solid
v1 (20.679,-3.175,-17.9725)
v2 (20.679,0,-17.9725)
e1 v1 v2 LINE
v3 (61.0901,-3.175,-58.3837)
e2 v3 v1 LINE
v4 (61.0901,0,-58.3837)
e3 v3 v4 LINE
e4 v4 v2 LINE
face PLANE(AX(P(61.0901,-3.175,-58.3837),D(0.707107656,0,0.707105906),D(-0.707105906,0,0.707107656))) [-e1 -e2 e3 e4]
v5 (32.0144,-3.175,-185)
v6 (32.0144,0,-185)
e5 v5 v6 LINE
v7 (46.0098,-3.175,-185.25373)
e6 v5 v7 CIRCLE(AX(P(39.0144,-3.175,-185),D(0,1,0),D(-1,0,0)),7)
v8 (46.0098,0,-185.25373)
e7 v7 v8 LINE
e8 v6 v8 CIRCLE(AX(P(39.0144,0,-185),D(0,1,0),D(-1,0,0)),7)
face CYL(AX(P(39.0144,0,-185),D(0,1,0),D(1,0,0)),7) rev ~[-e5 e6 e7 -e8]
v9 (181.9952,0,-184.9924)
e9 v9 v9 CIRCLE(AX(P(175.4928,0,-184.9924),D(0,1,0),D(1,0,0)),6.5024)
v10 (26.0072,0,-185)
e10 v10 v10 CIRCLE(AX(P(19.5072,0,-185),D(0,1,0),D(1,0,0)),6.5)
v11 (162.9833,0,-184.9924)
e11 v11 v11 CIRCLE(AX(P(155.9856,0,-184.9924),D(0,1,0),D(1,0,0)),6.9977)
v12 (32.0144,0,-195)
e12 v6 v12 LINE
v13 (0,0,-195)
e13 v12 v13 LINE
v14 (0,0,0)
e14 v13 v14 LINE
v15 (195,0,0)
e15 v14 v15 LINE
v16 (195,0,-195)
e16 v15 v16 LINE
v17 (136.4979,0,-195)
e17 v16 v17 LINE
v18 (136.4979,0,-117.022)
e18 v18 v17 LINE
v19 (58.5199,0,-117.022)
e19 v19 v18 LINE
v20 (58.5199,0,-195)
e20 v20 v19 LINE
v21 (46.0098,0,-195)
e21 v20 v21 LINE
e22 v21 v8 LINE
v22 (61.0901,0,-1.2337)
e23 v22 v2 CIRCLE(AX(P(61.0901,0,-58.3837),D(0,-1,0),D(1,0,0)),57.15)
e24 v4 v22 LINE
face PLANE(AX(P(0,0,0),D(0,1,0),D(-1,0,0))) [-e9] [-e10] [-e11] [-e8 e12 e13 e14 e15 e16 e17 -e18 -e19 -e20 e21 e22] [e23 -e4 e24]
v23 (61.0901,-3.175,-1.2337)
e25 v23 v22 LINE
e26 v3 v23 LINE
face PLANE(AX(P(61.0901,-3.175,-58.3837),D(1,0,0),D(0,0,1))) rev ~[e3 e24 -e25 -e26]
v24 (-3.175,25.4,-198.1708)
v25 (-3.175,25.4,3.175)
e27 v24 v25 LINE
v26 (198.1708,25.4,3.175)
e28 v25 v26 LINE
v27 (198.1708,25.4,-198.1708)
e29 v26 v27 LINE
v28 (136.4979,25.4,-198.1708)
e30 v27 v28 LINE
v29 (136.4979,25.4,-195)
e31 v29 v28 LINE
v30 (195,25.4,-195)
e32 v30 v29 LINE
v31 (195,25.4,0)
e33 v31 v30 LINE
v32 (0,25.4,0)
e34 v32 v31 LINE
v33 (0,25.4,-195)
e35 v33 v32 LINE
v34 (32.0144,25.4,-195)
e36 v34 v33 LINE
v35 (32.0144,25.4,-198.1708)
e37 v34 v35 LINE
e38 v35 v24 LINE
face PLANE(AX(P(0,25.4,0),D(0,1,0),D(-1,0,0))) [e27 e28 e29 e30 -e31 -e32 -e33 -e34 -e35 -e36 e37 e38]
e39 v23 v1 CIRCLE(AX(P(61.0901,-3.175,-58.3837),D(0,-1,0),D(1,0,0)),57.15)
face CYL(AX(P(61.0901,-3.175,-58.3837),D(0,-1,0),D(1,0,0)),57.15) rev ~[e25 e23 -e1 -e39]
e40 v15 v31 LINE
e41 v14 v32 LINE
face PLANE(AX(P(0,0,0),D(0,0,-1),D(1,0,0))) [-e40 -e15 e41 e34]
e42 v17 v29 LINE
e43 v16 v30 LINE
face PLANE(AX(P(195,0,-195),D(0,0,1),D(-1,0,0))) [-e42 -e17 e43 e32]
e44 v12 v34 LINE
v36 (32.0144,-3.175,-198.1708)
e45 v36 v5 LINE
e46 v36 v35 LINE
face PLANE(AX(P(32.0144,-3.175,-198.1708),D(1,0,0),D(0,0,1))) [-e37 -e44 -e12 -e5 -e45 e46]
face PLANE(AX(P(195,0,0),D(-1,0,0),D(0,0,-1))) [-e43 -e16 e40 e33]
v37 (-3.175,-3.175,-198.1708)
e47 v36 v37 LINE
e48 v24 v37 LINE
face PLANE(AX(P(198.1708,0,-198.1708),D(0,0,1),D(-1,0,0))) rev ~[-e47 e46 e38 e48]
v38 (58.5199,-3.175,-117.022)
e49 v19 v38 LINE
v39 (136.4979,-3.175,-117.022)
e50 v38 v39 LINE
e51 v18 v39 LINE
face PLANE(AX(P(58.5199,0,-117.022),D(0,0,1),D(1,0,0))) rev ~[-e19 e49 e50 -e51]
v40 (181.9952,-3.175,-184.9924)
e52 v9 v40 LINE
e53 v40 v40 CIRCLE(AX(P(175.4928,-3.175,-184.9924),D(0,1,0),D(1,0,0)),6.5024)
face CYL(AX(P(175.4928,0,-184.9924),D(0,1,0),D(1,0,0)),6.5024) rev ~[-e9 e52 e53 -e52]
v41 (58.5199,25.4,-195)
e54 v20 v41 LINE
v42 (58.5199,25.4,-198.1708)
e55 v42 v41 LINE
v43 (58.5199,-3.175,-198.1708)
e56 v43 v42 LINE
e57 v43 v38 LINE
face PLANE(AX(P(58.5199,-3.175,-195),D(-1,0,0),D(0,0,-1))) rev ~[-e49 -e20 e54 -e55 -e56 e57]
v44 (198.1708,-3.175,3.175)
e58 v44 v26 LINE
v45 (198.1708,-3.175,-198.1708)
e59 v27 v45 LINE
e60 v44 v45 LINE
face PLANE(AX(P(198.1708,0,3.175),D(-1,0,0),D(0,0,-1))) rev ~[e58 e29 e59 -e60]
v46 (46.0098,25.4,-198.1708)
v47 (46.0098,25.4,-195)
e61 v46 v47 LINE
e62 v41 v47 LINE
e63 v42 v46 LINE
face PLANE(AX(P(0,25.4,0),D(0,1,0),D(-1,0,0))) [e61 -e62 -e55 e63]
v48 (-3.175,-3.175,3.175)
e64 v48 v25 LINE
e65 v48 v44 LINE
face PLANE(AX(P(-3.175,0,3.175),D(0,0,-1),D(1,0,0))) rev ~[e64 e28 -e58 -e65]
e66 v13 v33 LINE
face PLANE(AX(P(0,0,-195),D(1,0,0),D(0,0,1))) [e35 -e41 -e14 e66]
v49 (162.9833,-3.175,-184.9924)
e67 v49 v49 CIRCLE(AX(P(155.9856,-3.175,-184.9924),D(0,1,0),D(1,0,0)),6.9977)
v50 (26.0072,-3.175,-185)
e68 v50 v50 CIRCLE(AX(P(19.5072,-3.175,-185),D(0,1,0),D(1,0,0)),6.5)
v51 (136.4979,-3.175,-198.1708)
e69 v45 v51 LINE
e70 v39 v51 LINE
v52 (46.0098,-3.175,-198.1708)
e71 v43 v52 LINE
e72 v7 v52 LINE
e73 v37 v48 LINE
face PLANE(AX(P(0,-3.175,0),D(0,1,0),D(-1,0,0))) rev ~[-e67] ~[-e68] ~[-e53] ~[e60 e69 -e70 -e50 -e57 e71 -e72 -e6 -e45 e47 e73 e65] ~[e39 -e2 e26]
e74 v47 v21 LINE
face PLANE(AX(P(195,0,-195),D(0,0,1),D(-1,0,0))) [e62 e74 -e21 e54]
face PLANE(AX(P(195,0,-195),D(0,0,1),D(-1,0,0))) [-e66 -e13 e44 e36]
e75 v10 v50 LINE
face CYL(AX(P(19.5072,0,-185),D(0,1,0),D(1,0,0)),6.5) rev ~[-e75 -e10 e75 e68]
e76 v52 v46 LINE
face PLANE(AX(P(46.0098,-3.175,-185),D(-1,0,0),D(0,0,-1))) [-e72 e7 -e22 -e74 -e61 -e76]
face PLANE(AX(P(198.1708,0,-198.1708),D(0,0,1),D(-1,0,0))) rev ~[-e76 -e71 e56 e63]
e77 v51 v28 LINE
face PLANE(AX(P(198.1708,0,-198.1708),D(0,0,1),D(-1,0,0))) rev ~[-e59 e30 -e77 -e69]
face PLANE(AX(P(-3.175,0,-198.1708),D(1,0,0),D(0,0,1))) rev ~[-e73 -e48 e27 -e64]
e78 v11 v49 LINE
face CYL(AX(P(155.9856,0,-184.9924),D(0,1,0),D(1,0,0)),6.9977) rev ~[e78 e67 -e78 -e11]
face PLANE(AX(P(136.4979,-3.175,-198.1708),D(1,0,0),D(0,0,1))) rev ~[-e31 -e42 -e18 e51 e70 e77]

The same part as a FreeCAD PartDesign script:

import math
import FreeCAD as App
import Part
import Sketcher
Q = App.Units.Quantity

doc = App.newDocument("Part")
body = doc.addObject("PartDesign::Body", "Body")

sketch1 = body.newObject("Sketcher::SketchObject", "Sketch")
sketch1.AttachmentSupport = (doc.getObject("XZ_Plane"), [""])
sketch1.MapMode = "FlatFace"
sketch1.addGeometry(Part.LineSegment(App.Vector(-3, -198, 0), App.Vector(-3, 3, 0)), False)
sketch1.addGeometry(Part.LineSegment(App.Vector(-3, 3, 0), App.Vector(198, 3, 0)), False)
sketch1.addGeometry(Part.LineSegment(App.Vector(198, 3, 0), App.Vector(198, -198, 0)), False)
sketch1.addGeometry(Part.LineSegment(App.Vector(198, -198, 0), App.Vector(-3, -198, 0)), False)
sketch1.addGeometry(Part.LineSegment(App.Vector(195, 0, 0), App.Vector(0, 0, 0)), False)
sketch1.addGeometry(Part.LineSegment(App.Vector(0, 0, 0), App.Vector(0, -195, 0)), False)
sketch1.addGeometry(Part.LineSegment(App.Vector(0, -195, 0), App.Vector(195, -195, 0)), False)
sketch1.addGeometry(Part.LineSegment(App.Vector(195, -195, 0), App.Vector(195, 0, 0)), False)
sketch1.addConstraint(Sketcher.Constraint("Coincident", 0, 2, 1, 1))
sketch1.addConstraint(Sketcher.Constraint("Coincident", 1, 2, 2, 1))
sketch1.addConstraint(Sketcher.Constraint("Coincident", 2, 2, 3, 1))
sketch1.addConstraint(Sketcher.Constraint("Coincident", 3, 2, 0, 1))
sketch1.addConstraint(Sketcher.Constraint("Coincident", 4, 2, 5, 1))
sketch1.addConstraint(Sketcher.Constraint("Coincident", 5, 2, 6, 1))
sketch1.addConstraint(Sketcher.Constraint("Coincident", 6, 2, 7, 1))
sketch1.addConstraint(Sketcher.Constraint("Coincident", 7, 2, 4, 1))
sketch1.addConstraint(Sketcher.Constraint("Vertical", 0))
sketch1.addConstraint(Sketcher.Constraint("Horizontal", 1))
sketch1.addConstraint(Sketcher.Constraint("Vertical", 2))
sketch1.addConstraint(Sketcher.Constraint("Horizontal", 3))
sketch1.addConstraint(Sketcher.Constraint("Horizontal", 4))
sketch1.addConstraint(Sketcher.Constraint("Vertical", 5))
sketch1.addConstraint(Sketcher.Constraint("Horizontal", 6))
sketch1.addConstraint(Sketcher.Constraint("Vertical", 7))
sketch1.addConstraint(Sketcher.Constraint("Coincident", 4, 2, -1, 1))
sketch1.addConstraint(Sketcher.Constraint("Equal", 3, 0))
sketch1.addConstraint(Sketcher.Constraint("Equal", 6, 5))
sketch1.addConstraint(Sketcher.Constraint("DistanceX", 1, 1, 1, 2, Q("7.927 in")))
sketch1.addConstraint(Sketcher.Constraint("DistanceX", 4, 2, 4, 1, Q("195 mm")))
sketch1.addConstraint(Sketcher.Constraint("DistanceX", 0, 2, -1, 1, Q("0.125 in")))
sketch1.addConstraint(Sketcher.Constraint("DistanceY", -1, 1, 0, 2, Q("0.125 in")))
pad1 = body.newObject("PartDesign::Pad", "Pad")
pad1.Profile = sketch1
pad1.Length = Q("1 in")
pad1.Reversed = True

sketch2 = body.newObject("Sketcher::SketchObject", "Sketch001")
sketch2.AttachmentSupport = (doc.getObject("XZ_Plane"), [""])
sketch2.MapMode = "FlatFace"
sketch2.addGeometry(Part.LineSegment(App.Vector(-3, -198, 0), App.Vector(-3, 3, 0)), False)
sketch2.addGeometry(Part.LineSegment(App.Vector(-3, 3, 0), App.Vector(198, 3, 0)), False)
sketch2.addGeometry(Part.LineSegment(App.Vector(198, 3, 0), App.Vector(198, -198, 0)), False)
sketch2.addGeometry(Part.LineSegment(App.Vector(198, -198, 0), App.Vector(-3, -198, 0)), False)
sketch2.addConstraint(Sketcher.Constraint("Coincident", 0, 2, 1, 1))
sketch2.addConstraint(Sketcher.Constraint("Coincident", 1, 2, 2, 1))
sketch2.addConstraint(Sketcher.Constraint("Coincident", 2, 2, 3, 1))
sketch2.addConstraint(Sketcher.Constraint("Coincident", 3, 2, 0, 1))
sketch2.addConstraint(Sketcher.Constraint("Vertical", 0))
sketch2.addConstraint(Sketcher.Constraint("Horizontal", 1))
sketch2.addConstraint(Sketcher.Constraint("Vertical", 2))
sketch2.addConstraint(Sketcher.Constraint("Horizontal", 3))
sketch2.addConstraint(Sketcher.Constraint("Equal", 3, 0))
sketch2.addConstraint(Sketcher.Constraint("DistanceX", 1, 1, 1, 2, Q("7.927 in")))
sketch2.addConstraint(Sketcher.Constraint("DistanceX", 0, 2, -1, 1, Q("0.125 in")))
sketch2.addConstraint(Sketcher.Constraint("DistanceY", -1, 1, 0, 2, Q("0.125 in")))
pad2 = body.newObject("PartDesign::Pad", "Pad001")
pad2.Profile = sketch2
pad2.Length = Q("0.125 in")

sketch3 = body.newObject("Sketcher::SketchObject", "Sketch002")
sketch3.AttachmentSupport = (doc.getObject("XZ_Plane"), [""])
sketch3.MapMode = "FlatFace"
sketch3.addGeometry(Part.LineSegment(App.Vector(136, -195, 0), App.Vector(59, -195, 0)), False)
sketch3.addGeometry(Part.LineSegment(App.Vector(59, -195, 0), App.Vector(59, -117, 0)), False)
sketch3.addGeometry(Part.LineSegment(App.Vector(59, -117, 0), App.Vector(136, -117, 0)), False)
sketch3.addGeometry(Part.LineSegment(App.Vector(136, -117, 0), App.Vector(136, -195, 0)), False)
sketch3.addConstraint(Sketcher.Constraint("Coincident", 0, 2, 1, 1))
sketch3.addConstraint(Sketcher.Constraint("Coincident", 1, 2, 2, 1))
sketch3.addConstraint(Sketcher.Constraint("Coincident", 2, 2, 3, 1))
sketch3.addConstraint(Sketcher.Constraint("Coincident", 3, 2, 0, 1))
sketch3.addConstraint(Sketcher.Constraint("Horizontal", 0))
sketch3.addConstraint(Sketcher.Constraint("Vertical", 1))
sketch3.addConstraint(Sketcher.Constraint("Horizontal", 2))
sketch3.addConstraint(Sketcher.Constraint("Vertical", 3))
sketch3.addConstraint(Sketcher.Constraint("Equal", 2, 1))
sketch3.addConstraint(Sketcher.Constraint("DistanceX", 0, 2, 0, 1, Q("3.07 in")))
sketch3.addConstraint(Sketcher.Constraint("DistanceX", -1, 1, 0, 2, Q("58.52 mm")))
sketch3.addConstraint(Sketcher.Constraint("DistanceY", 0, 2, -1, 1, Q("195 mm")))
pocket1 = body.newObject("PartDesign::Pocket", "Pocket")
pocket1.Profile = sketch3
pocket1.Length = Q("0.125 in")
pocket1.Reversed = True

sketch4 = body.newObject("Sketcher::SketchObject", "Sketch003")
sketch4.AttachmentSupport = (doc.getObject("XZ_Plane"), [""])
sketch4.MapMode = "FlatFace"
sketch4.addGeometry(Part.Circle(App.Vector(20, -185, 0), App.Vector(0, 0, 1), 6), False)
sketch4.addGeometry(Part.Circle(App.Vector(39, -185, 0), App.Vector(0, 0, 1), 7), False)
sketch4.addGeometry(Part.Circle(App.Vector(175, -185, 0), App.Vector(0, 0, 1), 7), False)
sketch4.addGeometry(Part.Circle(App.Vector(156, -185, 0), App.Vector(0, 0, 1), 7), False)
sketch4.addConstraint(Sketcher.Constraint("Horizontal", 0, 3, 1, 3))
sketch4.addConstraint(Sketcher.Constraint("Horizontal", 2, 3, 3, 3))
sketch4.addConstraint(Sketcher.Constraint("Diameter", 2, Q("0.512 in")))
sketch4.addConstraint(Sketcher.Constraint("Diameter", 3, Q("0.551 in")))
sketch4.addConstraint(Sketcher.Constraint("Diameter", 0, Q("0.5118 in")))
sketch4.addConstraint(Sketcher.Constraint("Diameter", 1, Q("14 mm")))
sketch4.addConstraint(Sketcher.Constraint("DistanceX", -1, 1, 0, 3, Q("0.768 in")))
sketch4.addConstraint(Sketcher.Constraint("DistanceX", 0, 3, 1, 3, Q("0.768 in")))
sketch4.addConstraint(Sketcher.Constraint("DistanceX", 3, 3, 2, 3, Q("0.768 in")))
sketch4.addConstraint(Sketcher.Constraint("DistanceY", 1, 3, 2, 3, Q("0.0003 in")))
sketch4.addConstraint(Sketcher.Constraint("DistanceY", 0, 3, -1, 1, Q("185 mm")))
sketch4.addConstraint(Sketcher.Constraint("DistanceX", -1, 1, 2, 3, Q("175.4928 mm")))
pocket2 = body.newObject("PartDesign::Pocket", "Pocket001")
pocket2.Profile = sketch4
pocket2.Length = Q("0.125 in")
pocket2.Reversed = True

sketch5 = body.newObject("Sketcher::SketchObject", "Sketch004")
sketch5.AttachmentSupport = (doc.getObject("XZ_Plane"), [""])
sketch5.MapMode = "FlatFace"
sketch5.AttachmentOffset = App.Placement(App.Vector(0, 0, 0.125 * 25.4), App.Rotation())
sketch5.addGeometry(Part.LineSegment(App.Vector(61, -58, 0), App.Vector(61, -1, 0)), False)
sketch5.addGeometry(Part.ArcOfCircle(Part.Circle(App.Vector(61, -58, 0), App.Vector(0, 0, 1), 57), math.radians(90), math.radians(135)), False)
sketch5.addGeometry(Part.LineSegment(App.Vector(21, -18, 0), App.Vector(61, -58, 0)), False)
sketch5.addConstraint(Sketcher.Constraint("Coincident", 0, 2, 1, 1))
sketch5.addConstraint(Sketcher.Constraint("Coincident", 1, 2, 2, 1))
sketch5.addConstraint(Sketcher.Constraint("Coincident", 2, 2, 0, 1))
sketch5.addConstraint(Sketcher.Constraint("Vertical", 0))
sketch5.addConstraint(Sketcher.Constraint("Coincident", 2, 2, 1, 3))
sketch5.addConstraint(Sketcher.Constraint("Radius", 1, Q("2.25 in")))
sketch5.addConstraint(Sketcher.Constraint("Angle", 2, Q("-45 deg")))
sketch5.addConstraint(Sketcher.Constraint("DistanceX", -1, 1, 1, 3, Q("61.09 mm")))
sketch5.addConstraint(Sketcher.Constraint("DistanceY", 1, 3, -1, 1, Q("58.3837 mm")))
pocket3 = body.newObject("PartDesign::Pocket", "Pocket002")
pocket3.Profile = sketch5
pocket3.Length = Q("0.125 in")

sketch6 = body.newObject("Sketcher::SketchObject", "Sketch005")
sketch6.AttachmentSupport = (doc.getObject("XZ_Plane"), [""])
sketch6.MapMode = "FlatFace"
sketch6.AttachmentOffset = App.Placement(App.Vector(0, 0, 0.125 * 25.4), App.Rotation())
sketch6.addGeometry(Part.LineSegment(App.Vector(136.5, -198.2, 0), App.Vector(136.5, -195, 0)), False)
sketch6.addGeometry(Part.LineSegment(App.Vector(136.5, -195, 0), App.Vector(58.5, -195, 0)), False)
sketch6.addGeometry(Part.LineSegment(App.Vector(58.5, -195, 0), App.Vector(58.5, -198.2, 0)), False)
sketch6.addGeometry(Part.LineSegment(App.Vector(58.5, -198.2, 0), App.Vector(136.5, -198.2, 0)), False)
sketch6.addConstraint(Sketcher.Constraint("Coincident", 0, 2, 1, 1))
sketch6.addConstraint(Sketcher.Constraint("Coincident", 1, 2, 2, 1))
sketch6.addConstraint(Sketcher.Constraint("Coincident", 2, 2, 3, 1))
sketch6.addConstraint(Sketcher.Constraint("Coincident", 3, 2, 0, 1))
sketch6.addConstraint(Sketcher.Constraint("Vertical", 0))
sketch6.addConstraint(Sketcher.Constraint("Horizontal", 1))
sketch6.addConstraint(Sketcher.Constraint("Vertical", 2))
sketch6.addConstraint(Sketcher.Constraint("Horizontal", 3))
sketch6.addConstraint(Sketcher.Constraint("DistanceX", 1, 2, 1, 1, Q("3.07 in")))
sketch6.addConstraint(Sketcher.Constraint("DistanceY", 2, 2, -1, 1, Q("7.802 in")))
sketch6.addConstraint(Sketcher.Constraint("DistanceY", 0, 1, 0, 2, Q("3.1708 mm")))
sketch6.addConstraint(Sketcher.Constraint("DistanceX", -1, 1, 0, 2, Q("136.498 mm")))
pocket4 = body.newObject("PartDesign::Pocket", "Pocket003")
pocket4.Profile = sketch6
pocket4.Type = "ThroughAll"

sketch7 = body.newObject("Sketcher::SketchObject", "Sketch006")
sketch7.AttachmentSupport = (doc.getObject("XZ_Plane"), [""])
sketch7.MapMode = "FlatFace"
sketch7.AttachmentOffset = App.Placement(App.Vector(0, 0, 0.125 * 25.4), App.Rotation())
sketch7.addGeometry(Part.LineSegment(App.Vector(46, -185, 0), App.Vector(32, -185, 0)), False)
sketch7.addGeometry(Part.LineSegment(App.Vector(32, -185, 0), App.Vector(32, -198, 0)), False)
sketch7.addGeometry(Part.LineSegment(App.Vector(32, -198, 0), App.Vector(46, -198, 0)), False)
sketch7.addGeometry(Part.LineSegment(App.Vector(46, -198, 0), App.Vector(46, -185, 0)), False)
sketch7.addConstraint(Sketcher.Constraint("Coincident", 0, 2, 1, 1))
sketch7.addConstraint(Sketcher.Constraint("Coincident", 1, 2, 2, 1))
sketch7.addConstraint(Sketcher.Constraint("Coincident", 2, 2, 3, 1))
sketch7.addConstraint(Sketcher.Constraint("Coincident", 3, 2, 0, 1))
sketch7.addConstraint(Sketcher.Constraint("Horizontal", 0))
sketch7.addConstraint(Sketcher.Constraint("Vertical", 1))
sketch7.addConstraint(Sketcher.Constraint("Horizontal", 2))
sketch7.addConstraint(Sketcher.Constraint("Vertical", 3))
sketch7.addConstraint(Sketcher.Constraint("DistanceX", 0, 2, 0, 1, Q("0.551 in")))
sketch7.addConstraint(Sketcher.Constraint("DistanceY", 1, 2, -1, 1, Q("7.802 in")))
sketch7.addConstraint(Sketcher.Constraint("DistanceY", 1, 2, 1, 1, Q("13.1708 mm")))
sketch7.addConstraint(Sketcher.Constraint("DistanceX", -1, 1, 0, 2, Q("1.2604 in")))
pocket5 = body.newObject("PartDesign::Pocket", "Pocket004")
pocket5.Profile = sketch7
pocket5.Type = "ThroughAll"

doc.recompute()
